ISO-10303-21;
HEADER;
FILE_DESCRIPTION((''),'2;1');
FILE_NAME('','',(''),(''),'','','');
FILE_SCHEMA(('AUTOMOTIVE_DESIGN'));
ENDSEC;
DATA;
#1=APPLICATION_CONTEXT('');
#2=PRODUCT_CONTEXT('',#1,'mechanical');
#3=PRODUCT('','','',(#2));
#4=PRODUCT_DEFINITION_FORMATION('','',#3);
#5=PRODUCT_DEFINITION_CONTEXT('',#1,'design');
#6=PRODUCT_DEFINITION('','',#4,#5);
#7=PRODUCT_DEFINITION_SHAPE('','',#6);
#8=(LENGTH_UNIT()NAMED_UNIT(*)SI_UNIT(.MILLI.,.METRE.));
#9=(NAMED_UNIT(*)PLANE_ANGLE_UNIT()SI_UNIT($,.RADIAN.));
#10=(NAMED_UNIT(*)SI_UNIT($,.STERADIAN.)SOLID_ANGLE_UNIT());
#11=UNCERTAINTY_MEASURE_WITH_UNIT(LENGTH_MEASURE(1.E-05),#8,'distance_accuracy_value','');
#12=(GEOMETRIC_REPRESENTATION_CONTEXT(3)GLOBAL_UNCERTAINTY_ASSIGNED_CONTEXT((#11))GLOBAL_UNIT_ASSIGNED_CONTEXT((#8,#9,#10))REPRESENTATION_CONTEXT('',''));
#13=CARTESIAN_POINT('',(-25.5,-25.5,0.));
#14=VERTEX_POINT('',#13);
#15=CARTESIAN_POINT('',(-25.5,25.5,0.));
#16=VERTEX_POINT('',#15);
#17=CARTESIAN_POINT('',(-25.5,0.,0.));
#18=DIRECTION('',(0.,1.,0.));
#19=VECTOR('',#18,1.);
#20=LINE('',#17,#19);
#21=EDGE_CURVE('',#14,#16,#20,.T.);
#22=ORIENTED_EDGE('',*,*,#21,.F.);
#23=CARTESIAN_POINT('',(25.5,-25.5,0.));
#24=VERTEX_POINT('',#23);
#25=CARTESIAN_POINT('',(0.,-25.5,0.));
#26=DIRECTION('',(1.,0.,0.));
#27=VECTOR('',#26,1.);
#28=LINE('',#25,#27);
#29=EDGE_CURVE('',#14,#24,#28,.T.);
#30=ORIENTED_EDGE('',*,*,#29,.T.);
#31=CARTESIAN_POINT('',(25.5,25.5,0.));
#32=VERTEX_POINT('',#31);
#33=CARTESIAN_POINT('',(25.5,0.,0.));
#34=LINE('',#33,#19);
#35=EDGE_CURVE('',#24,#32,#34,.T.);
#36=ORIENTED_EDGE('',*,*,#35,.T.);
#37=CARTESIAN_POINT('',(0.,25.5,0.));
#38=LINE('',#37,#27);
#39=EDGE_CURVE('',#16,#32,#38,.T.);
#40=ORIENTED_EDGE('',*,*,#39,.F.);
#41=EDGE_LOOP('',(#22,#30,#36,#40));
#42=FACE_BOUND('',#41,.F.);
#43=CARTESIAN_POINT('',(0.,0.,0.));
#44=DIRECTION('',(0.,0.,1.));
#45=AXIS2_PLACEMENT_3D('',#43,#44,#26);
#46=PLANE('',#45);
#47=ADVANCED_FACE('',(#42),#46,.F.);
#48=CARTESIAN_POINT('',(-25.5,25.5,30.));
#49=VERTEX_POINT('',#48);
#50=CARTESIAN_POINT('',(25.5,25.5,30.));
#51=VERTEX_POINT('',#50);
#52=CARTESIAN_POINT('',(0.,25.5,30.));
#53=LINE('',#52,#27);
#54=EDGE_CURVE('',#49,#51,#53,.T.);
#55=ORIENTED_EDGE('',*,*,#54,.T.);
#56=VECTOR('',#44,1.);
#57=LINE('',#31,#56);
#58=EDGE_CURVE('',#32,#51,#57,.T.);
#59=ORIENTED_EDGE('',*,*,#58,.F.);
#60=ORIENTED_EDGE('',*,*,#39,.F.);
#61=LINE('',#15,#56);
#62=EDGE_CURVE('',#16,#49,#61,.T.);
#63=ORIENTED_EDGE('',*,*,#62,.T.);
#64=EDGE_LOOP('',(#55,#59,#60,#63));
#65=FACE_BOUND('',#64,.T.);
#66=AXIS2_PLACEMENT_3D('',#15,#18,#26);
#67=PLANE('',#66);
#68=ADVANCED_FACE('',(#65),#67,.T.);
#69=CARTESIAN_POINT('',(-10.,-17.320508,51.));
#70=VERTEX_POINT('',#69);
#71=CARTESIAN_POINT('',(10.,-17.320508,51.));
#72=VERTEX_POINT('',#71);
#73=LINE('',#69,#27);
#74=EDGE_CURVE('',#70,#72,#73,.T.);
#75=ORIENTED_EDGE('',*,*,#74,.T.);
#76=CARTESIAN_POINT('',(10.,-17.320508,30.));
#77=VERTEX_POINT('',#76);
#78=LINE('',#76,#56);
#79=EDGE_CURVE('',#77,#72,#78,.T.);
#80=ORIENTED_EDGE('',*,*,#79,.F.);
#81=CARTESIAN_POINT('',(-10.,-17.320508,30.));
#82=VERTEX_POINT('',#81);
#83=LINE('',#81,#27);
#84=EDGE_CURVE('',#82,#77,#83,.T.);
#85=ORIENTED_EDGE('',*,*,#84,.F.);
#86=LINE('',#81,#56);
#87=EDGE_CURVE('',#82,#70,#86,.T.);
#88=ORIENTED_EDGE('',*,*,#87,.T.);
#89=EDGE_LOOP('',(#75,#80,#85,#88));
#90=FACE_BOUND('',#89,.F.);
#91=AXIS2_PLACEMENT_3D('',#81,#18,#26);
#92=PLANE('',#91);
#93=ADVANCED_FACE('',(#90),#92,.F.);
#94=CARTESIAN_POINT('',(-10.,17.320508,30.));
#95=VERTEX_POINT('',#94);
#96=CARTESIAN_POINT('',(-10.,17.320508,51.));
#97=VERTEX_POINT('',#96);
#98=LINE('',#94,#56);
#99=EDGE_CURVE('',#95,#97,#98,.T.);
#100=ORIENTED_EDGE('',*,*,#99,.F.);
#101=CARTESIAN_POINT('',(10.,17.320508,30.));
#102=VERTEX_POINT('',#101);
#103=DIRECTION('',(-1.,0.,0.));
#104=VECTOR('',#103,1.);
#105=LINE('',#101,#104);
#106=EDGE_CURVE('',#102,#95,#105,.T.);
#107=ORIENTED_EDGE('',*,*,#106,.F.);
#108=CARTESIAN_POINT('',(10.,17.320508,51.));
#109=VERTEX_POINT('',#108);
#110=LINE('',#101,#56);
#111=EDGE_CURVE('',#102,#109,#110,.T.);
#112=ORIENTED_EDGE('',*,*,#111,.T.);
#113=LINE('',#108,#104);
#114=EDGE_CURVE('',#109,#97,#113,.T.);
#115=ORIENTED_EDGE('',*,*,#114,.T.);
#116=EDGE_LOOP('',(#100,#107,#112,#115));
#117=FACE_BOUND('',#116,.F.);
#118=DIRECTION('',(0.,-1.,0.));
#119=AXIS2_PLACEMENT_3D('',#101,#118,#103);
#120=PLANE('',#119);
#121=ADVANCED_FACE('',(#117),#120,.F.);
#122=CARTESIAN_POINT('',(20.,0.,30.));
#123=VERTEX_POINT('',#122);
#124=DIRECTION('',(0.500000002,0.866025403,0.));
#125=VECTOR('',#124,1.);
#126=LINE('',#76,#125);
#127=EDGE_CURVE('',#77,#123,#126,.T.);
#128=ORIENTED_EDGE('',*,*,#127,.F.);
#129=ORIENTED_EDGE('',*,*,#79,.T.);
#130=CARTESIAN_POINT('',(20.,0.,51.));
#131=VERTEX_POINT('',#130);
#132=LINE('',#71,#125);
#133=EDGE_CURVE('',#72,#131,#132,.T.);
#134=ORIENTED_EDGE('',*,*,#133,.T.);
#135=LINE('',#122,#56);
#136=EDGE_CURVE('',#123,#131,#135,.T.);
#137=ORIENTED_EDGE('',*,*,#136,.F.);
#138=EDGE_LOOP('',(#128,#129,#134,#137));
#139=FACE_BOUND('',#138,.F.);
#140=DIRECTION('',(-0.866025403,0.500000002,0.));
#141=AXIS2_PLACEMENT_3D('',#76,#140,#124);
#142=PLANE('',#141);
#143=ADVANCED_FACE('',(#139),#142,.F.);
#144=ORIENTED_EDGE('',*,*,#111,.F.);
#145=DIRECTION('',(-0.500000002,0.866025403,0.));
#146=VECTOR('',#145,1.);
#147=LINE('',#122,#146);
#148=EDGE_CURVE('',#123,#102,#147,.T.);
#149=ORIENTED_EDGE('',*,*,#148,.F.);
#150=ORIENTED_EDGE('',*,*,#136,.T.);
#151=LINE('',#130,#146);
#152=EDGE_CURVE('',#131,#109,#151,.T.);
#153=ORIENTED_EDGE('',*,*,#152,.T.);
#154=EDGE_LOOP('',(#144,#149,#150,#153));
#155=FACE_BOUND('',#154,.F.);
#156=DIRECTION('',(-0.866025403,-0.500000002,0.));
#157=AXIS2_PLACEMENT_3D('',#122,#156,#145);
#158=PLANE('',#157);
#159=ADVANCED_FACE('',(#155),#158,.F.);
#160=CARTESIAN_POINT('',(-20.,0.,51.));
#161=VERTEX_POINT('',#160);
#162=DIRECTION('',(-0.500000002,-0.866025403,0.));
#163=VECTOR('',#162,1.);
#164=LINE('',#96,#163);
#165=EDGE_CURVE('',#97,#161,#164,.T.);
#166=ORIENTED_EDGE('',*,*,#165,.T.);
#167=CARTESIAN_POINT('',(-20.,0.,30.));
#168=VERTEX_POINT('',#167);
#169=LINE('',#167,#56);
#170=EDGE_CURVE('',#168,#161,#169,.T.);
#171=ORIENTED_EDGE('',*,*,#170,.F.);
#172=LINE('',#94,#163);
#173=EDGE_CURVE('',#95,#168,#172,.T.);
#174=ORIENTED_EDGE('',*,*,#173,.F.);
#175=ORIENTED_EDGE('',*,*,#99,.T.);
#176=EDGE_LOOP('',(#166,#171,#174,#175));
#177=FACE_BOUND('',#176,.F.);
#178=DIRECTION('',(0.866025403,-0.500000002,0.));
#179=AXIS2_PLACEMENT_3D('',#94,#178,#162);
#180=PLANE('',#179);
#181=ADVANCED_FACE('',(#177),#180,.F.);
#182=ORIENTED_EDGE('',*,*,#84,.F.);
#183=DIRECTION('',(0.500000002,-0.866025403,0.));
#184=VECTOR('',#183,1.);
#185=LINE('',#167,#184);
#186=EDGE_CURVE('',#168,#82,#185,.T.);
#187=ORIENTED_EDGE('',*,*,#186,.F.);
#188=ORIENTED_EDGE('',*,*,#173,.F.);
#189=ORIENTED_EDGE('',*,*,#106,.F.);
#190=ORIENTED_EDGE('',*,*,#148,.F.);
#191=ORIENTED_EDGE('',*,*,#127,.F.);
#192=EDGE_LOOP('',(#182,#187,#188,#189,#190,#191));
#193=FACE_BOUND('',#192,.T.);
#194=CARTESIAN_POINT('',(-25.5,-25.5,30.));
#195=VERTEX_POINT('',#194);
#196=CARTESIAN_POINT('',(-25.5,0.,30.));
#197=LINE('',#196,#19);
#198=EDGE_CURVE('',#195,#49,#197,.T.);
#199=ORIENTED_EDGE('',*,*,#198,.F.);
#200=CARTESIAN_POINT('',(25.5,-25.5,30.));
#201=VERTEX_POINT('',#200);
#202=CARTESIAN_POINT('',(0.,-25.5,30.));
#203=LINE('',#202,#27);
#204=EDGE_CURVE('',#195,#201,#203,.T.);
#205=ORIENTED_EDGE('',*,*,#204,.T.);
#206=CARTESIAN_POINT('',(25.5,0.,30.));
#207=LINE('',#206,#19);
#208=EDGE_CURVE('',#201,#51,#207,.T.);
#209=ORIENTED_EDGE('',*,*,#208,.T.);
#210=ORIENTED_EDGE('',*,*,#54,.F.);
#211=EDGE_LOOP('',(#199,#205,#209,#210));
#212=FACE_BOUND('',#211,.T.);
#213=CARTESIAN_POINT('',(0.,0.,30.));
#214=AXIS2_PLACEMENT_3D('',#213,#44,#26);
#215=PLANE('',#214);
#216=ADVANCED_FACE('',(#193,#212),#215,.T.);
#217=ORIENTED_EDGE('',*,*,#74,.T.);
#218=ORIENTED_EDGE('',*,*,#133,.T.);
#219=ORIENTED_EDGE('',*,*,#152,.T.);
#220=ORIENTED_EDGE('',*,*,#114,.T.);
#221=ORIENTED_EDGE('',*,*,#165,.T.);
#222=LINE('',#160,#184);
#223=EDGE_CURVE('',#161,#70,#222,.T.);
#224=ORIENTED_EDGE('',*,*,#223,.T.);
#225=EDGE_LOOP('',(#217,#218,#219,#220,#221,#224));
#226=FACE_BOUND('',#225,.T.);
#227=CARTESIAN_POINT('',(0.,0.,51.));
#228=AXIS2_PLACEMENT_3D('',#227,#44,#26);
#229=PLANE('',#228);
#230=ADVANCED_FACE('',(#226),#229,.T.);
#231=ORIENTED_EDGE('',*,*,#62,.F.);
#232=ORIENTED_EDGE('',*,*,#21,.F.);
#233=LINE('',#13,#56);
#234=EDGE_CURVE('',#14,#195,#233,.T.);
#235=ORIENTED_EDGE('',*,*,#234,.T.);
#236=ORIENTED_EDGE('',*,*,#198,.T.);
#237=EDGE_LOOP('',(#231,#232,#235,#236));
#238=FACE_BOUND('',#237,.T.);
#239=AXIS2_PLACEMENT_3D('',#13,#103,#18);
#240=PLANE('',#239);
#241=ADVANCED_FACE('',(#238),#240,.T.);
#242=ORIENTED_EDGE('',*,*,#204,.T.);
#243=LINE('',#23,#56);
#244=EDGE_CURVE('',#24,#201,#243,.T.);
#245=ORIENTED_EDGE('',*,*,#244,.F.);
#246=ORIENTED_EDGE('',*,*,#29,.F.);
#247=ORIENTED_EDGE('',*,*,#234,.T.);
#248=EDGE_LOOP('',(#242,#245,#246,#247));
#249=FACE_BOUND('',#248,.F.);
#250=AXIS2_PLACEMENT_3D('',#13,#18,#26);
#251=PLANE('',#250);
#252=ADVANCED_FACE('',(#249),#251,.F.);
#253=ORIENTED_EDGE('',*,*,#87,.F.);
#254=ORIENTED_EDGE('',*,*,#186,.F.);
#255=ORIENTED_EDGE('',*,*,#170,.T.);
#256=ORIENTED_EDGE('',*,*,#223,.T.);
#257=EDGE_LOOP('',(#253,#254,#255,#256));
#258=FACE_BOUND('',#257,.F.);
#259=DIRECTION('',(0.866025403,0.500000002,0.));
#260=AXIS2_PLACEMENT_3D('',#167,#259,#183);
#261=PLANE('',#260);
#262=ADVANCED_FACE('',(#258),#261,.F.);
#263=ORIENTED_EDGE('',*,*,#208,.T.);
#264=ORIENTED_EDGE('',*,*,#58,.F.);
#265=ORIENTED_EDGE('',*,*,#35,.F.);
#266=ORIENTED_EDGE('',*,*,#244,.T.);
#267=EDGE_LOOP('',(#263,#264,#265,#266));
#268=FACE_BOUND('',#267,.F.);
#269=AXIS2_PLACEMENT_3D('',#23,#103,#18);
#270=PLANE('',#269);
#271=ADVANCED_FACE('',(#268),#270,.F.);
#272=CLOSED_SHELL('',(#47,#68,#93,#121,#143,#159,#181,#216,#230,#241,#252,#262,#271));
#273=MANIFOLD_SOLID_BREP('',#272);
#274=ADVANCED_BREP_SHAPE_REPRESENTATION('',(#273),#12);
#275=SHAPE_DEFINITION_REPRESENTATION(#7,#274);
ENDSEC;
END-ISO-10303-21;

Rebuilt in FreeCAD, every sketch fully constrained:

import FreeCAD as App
import Part
import Sketcher

V = App.Vector
Q = App.Units.Quantity

doc = App.newDocument("Part")
body = doc.addObject("PartDesign::Body", "Body")

# Sketch on XY plane
sketch1 = doc.addObject("Sketcher::SketchObject", "Sketch")
body.addObject(sketch1)
sketch1.AttachmentSupport = (doc.XY_Plane, [""])
sketch1.MapMode = "FlatFace"
sketch1.addGeometry(Part.LineSegment(V(-26, 26, 0), V(-26, -26, 0)), False)
sketch1.addGeometry(Part.LineSegment(V(-26, -26, 0), V(26, -26, 0)), False)
sketch1.addGeometry(Part.LineSegment(V(26, -26, 0), V(26, 26, 0)), False)
sketch1.addGeometry(Part.LineSegment(V(26, 26, 0), V(-26, 26, 0)), False)
sketch1.addConstraint(Sketcher.Constraint("Coincident", 0, 2, 1, 1))
sketch1.addConstraint(Sketcher.Constraint("Coincident", 1, 2, 2, 1))
sketch1.addConstraint(Sketcher.Constraint("Coincident", 2, 2, 3, 1))
sketch1.addConstraint(Sketcher.Constraint("Coincident", 3, 2, 0, 1))
sketch1.addConstraint(Sketcher.Constraint("Vertical", 0))
sketch1.addConstraint(Sketcher.Constraint("Horizontal", 1))
sketch1.addConstraint(Sketcher.Constraint("Vertical", 2))
sketch1.addConstraint(Sketcher.Constraint("Horizontal", 3))
sketch1.addConstraint(Sketcher.Constraint("Symmetric", 0, 2, 2, 2, -1, 1))
sketch1.addConstraint(Sketcher.Constraint("Equal", 3, 0))
sketch1.addConstraint(Sketcher.Constraint("DistanceX", 1, 1, 1, 2, Q("51 mm")))
pad1 = doc.addObject("PartDesign::Pad", "Pad")
body.addObject(pad1)
pad1.Profile = sketch1
pad1.Length = 30

# Sketch on XY plane
sketch2 = doc.addObject("Sketcher::SketchObject", "Sketch001")
body.addObject(sketch2)
sketch2.AttachmentSupport = (doc.XY_Plane, [""])
sketch2.MapMode = "FlatFace"
sketch2.AttachmentOffset = App.Placement(V(0, 0, 30), App.Rotation())
sketch2.addGeometry(Part.LineSegment(V(-10, 17, 0), V(-20, 0, 0)), False)
sketch2.addGeometry(Part.LineSegment(V(-20, 0, 0), V(-10, -17, 0)), False)
sketch2.addGeometry(Part.LineSegment(V(-10, -17, 0), V(10, -17, 0)), False)
sketch2.addGeometry(Part.LineSegment(V(10, -17, 0), V(20, 0, 0)), False)
sketch2.addGeometry(Part.LineSegment(V(20, 0, 0), V(10, 17, 0)), False)
sketch2.addGeometry(Part.LineSegment(V(10, 17, 0), V(-10, 17, 0)), False)
sketch2.addConstraint(Sketcher.Constraint("Coincident", 0, 2, 1, 1))
sketch2.addConstraint(Sketcher.Constraint("Coincident", 1, 2, 2, 1))
sketch2.addConstraint(Sketcher.Constraint("Coincident", 2, 2, 3, 1))
sketch2.addConstraint(Sketcher.Constraint("Coincident", 3, 2, 4, 1))
sketch2.addConstraint(Sketcher.Constraint("Coincident", 4, 2, 5, 1))
sketch2.addConstraint(Sketcher.Constraint("Coincident", 5, 2, 0, 1))
sketch2.addConstraint(Sketcher.Constraint("Horizontal", 2))
sketch2.addConstraint(Sketcher.Constraint("Horizontal", 5))
sketch2.addConstraint(Sketcher.Constraint("Symmetric", 0, 2, 3, 2, -1, 1))
sketch2.addConstraint(Sketcher.Constraint("Symmetric", 1, 2, 4, 2, -1, 1))
sketch2.addConstraint(Sketcher.Constraint("PointOnObject", 0, 2, -1))
sketch2.addConstraint(Sketcher.Constraint("Parallel", 0, 3))
sketch2.addConstraint(Sketcher.Constraint("Vertical", 2, 2, 4, 2))
sketch2.addConstraint(Sketcher.Constraint("DistanceX", 2, 1, 2, 2, Q("20 mm")))
sketch2.addConstraint(Sketcher.Constraint("Angle", 0, Q("-120 deg")))
sketch2.addConstraint(Sketcher.Constraint("Distance", 0, Q("20 mm")))
pad2 = doc.addObject("PartDesign::Pad", "Pad001")
body.addObject(pad2)
pad2.Profile = sketch2
pad2.Length = 21

doc.recompute()
